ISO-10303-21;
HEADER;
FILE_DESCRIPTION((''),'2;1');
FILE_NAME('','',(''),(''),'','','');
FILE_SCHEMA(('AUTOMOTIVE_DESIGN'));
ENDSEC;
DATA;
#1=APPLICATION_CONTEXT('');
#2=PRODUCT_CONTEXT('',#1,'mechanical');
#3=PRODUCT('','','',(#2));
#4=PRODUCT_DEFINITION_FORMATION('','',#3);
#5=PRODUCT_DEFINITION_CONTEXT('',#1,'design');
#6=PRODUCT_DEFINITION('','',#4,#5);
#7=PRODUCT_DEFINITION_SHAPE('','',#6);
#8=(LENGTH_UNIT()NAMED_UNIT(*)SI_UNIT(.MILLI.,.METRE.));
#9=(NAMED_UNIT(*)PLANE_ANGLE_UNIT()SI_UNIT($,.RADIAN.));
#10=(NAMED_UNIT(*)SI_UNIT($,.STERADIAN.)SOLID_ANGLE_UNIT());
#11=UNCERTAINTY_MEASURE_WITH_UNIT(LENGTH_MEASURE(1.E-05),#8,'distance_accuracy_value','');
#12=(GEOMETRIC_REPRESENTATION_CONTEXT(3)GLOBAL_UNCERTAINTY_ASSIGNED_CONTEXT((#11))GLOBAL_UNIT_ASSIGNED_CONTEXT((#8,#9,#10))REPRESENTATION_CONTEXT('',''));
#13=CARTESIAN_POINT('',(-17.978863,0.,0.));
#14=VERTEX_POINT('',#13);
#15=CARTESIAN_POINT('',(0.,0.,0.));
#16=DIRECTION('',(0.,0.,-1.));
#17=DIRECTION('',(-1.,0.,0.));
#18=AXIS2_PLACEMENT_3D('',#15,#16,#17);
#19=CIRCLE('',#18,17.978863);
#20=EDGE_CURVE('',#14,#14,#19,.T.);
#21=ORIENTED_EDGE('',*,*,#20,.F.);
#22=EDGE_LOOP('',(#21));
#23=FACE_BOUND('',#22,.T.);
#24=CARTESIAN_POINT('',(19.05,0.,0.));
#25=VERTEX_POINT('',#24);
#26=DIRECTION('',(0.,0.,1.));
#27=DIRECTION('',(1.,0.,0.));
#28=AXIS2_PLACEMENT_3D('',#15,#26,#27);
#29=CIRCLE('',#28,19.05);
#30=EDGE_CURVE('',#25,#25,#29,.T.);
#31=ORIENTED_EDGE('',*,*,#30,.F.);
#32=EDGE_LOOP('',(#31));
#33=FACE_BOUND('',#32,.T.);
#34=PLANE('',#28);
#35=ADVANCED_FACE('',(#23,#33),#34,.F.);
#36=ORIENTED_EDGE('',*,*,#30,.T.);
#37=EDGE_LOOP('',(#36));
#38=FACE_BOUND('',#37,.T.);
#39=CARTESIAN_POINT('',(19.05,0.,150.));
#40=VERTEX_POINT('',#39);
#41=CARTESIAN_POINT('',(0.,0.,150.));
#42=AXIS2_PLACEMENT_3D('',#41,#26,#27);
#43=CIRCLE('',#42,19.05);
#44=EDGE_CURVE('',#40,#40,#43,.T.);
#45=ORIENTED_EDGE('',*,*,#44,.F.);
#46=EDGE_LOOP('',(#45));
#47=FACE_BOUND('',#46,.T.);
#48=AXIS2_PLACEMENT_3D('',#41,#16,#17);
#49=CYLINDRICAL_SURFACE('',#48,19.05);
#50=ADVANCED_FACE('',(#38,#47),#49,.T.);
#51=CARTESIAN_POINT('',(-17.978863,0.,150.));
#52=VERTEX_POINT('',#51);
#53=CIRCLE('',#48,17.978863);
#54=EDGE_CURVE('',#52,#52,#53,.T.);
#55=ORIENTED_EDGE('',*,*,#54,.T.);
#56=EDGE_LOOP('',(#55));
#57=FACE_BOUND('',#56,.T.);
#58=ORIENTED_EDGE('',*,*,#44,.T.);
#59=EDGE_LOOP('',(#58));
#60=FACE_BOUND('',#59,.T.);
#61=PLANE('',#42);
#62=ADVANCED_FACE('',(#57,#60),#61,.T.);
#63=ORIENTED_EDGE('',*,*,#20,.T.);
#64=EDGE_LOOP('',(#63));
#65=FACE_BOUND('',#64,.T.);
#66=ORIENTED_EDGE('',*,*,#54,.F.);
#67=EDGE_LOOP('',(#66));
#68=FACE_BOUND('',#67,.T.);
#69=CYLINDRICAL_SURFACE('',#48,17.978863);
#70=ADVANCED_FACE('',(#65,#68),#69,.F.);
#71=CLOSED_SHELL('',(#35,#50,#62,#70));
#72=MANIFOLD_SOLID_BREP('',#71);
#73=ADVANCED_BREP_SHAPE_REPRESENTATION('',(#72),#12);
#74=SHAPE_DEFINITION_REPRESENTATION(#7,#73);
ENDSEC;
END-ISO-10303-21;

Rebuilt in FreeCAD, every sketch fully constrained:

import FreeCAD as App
import Part
import Sketcher

V = App.Vector

doc = App.newDocument("Part")
body = doc.addObject("PartDesign::Body", "Body")

# Sketch on XY plane
sketch1 = body.newObject("Sketcher::SketchObject", "Sketch")
sketch1.AttachmentSupport = (doc.getObject("XY_Plane"), [""])
sketch1.MapMode = "FlatFace"
sketch1.addGeometry(Part.Circle(V(0, 0, 0), V(0, 0, 1), 19), False)
sketch1.addConstraint(Sketcher.Constraint("Coincident", 0, 3, -1, 1))
sketch1.addConstraint(Sketcher.Constraint("Diameter", 0, 38.1))
pad1 = body.newObject("PartDesign::Pad", "Pad")
pad1.Profile = sketch1
pad1.Length = 150

# Sketch on XY plane
sketch2 = body.newObject("Sketcher::SketchObject", "Sketch001")
sketch2.AttachmentSupport = (doc.getObject("XY_Plane"), [""])
sketch2.MapMode = "FlatFace"
sketch2.addGeometry(Part.Circle(V(0, 0, 0), V(0, 0, 1), 18), False)
sketch2.addConstraint(Sketcher.Constraint("Coincident", 0, 3, -1, 1))
sketch2.addConstraint(Sketcher.Constraint("Diameter", 0, 35.957725))
pocket1 = body.newObject("PartDesign::Pocket", "Pocket")
pocket1.Profile = sketch2
pocket1.Length = 150
pocket1.Reversed = True

doc.recompute()
